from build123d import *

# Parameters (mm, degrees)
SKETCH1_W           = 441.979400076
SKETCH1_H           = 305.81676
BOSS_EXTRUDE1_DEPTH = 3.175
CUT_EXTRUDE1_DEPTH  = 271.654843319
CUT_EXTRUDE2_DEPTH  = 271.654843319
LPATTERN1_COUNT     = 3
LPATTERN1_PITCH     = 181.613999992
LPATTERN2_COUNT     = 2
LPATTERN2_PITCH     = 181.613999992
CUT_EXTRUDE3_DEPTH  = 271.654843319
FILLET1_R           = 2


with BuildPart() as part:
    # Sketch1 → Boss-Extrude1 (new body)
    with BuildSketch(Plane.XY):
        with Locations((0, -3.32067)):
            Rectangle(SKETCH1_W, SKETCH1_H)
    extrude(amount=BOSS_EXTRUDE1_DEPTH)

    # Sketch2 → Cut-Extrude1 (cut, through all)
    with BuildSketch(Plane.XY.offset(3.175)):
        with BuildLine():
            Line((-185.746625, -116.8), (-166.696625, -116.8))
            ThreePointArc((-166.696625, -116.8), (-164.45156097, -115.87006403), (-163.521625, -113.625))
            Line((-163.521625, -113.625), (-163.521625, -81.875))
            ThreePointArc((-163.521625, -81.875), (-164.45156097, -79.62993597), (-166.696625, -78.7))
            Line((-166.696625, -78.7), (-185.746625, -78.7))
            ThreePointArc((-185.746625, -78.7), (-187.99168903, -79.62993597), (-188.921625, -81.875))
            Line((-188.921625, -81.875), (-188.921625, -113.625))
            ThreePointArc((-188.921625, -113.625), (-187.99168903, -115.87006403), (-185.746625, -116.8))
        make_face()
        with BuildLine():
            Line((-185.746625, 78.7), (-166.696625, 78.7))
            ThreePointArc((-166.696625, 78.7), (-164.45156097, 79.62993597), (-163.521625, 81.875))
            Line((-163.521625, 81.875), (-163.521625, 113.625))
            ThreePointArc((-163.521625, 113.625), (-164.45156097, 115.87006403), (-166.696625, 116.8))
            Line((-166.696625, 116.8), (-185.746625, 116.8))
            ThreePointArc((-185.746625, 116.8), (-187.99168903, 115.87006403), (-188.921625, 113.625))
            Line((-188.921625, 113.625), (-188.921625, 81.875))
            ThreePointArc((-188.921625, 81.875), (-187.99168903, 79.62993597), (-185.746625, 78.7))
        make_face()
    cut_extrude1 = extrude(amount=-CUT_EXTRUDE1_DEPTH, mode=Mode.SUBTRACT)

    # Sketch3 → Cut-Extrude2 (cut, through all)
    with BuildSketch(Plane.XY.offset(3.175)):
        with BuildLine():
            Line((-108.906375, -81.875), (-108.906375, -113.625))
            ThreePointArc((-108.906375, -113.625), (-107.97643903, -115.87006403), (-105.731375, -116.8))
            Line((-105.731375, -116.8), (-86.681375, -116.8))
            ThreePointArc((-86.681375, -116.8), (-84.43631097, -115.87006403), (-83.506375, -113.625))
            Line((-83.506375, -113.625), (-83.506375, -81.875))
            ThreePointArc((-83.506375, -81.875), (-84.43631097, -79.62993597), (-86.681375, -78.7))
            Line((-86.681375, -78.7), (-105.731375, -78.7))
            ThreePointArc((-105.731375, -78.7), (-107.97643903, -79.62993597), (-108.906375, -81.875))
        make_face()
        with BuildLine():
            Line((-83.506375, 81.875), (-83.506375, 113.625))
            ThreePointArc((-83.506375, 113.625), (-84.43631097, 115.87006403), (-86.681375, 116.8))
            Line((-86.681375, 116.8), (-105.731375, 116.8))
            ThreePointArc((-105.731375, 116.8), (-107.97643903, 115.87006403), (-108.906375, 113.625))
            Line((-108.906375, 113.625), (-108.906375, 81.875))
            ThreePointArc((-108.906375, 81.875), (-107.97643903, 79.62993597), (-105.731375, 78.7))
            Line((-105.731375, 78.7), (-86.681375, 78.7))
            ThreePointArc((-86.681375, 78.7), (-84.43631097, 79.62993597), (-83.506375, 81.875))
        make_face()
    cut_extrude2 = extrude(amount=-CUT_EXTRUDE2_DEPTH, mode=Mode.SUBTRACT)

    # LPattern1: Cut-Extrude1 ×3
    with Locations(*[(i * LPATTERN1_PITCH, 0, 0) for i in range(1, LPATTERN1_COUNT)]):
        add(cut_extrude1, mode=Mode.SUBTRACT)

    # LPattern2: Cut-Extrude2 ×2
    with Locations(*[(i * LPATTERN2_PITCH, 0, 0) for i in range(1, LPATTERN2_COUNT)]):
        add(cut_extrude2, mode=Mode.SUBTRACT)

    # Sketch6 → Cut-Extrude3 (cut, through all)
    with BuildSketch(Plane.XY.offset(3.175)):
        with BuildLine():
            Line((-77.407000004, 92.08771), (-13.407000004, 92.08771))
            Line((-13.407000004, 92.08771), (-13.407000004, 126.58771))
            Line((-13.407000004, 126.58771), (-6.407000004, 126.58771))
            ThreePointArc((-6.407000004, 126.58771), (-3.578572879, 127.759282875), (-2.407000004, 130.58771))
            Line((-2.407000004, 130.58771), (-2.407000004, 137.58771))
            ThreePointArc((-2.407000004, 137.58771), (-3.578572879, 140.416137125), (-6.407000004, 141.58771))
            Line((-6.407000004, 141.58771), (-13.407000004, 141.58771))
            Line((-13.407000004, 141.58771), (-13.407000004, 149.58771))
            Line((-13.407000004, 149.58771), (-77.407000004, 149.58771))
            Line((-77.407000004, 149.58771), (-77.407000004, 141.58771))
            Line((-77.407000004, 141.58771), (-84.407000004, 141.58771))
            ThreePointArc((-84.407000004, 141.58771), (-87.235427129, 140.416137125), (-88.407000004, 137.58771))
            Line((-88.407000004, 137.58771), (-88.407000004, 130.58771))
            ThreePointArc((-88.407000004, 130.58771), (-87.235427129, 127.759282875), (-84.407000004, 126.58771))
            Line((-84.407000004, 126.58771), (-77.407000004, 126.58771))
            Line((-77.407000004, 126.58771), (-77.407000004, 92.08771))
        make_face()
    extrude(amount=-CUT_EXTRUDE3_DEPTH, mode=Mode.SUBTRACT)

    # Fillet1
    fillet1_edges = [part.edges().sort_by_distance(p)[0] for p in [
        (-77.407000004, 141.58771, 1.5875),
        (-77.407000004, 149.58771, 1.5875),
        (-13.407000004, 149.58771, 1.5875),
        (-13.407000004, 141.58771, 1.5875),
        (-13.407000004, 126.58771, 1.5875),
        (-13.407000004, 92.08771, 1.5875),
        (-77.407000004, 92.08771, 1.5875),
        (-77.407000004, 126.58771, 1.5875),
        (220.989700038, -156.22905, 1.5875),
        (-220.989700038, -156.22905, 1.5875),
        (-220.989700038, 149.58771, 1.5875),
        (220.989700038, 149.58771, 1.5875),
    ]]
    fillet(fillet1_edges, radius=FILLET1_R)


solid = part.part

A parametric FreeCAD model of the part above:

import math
import FreeCAD as App
import Part
import Sketcher


def edges_at(feature, points):
    """Names of the edges that pass closest to the given points."""
    edges = feature.Shape.Edges
    near = lambda p: min(range(len(edges)), key=lambda i: edges[i].distToShape(Part.Vertex(*p))[0])
    return sorted({f"Edge{near(p) + 1}" for p in points})

doc = App.newDocument("Part")
params = doc.addObject("Spreadsheet::Sheet", "Params")
for row, (alias, value) in enumerate([
    ("pad1_length", "3.175 mm"),
    ("sketch2_width", "19.05 mm"),
    ("sketch2_height", "31.75 mm"),
    ("sketch3_width", "19.05 mm"),
    ("sketch3_height", "31.75 mm"),
    ("linearpattern_pitch", "181.614 mm"),
    ("linearpattern2_pitch", "181.614 mm"),
    ("sketch4_radius", "4 mm"),
    ("sketch4_width", "64 mm"),
    ("sketch4_width2", "7 mm"),
    ("sketch4_height", "8 mm"),
    ("sketch4_height2", "34.5 mm"),
    ("fillet_radius", "2 mm"),
], start=1):
    params.set(f"A{row}", alias)
    params.set(f"B{row}", "=" + value)
    params.setAlias(f"B{row}", alias)

body = doc.addObject("PartDesign::Body", "Body")

# Sketch on XY plane
sketch1 = body.newObject("Sketcher::SketchObject", "Sketch")
sketch1.AttachmentSupport = (doc.getObject("XY_Plane"), [""])
sketch1.MapMode = "FlatFace"
sketch1.addGeometry([
    Part.LineSegment(App.Vector(-220.9897, 149.58771, 0), App.Vector(-220.9897, -156.22905, 0)),
    Part.LineSegment(App.Vector(-220.9897, -156.22905, 0), App.Vector(220.9897, -156.22905, 0)),
    Part.LineSegment(App.Vector(220.9897, -156.22905, 0), App.Vector(220.9897, 149.58771, 0)),
    Part.LineSegment(App.Vector(220.9897, 149.58771, 0), App.Vector(-220.9897, 149.58771, 0)),
], False)
sketch1.addConstraint([
    Sketcher.Constraint("Coincident", 0, 2, 1, 1),
    Sketcher.Constraint("Coincident", 1, 2, 2, 1),
    Sketcher.Constraint("Coincident", 2, 2, 3, 1),
    Sketcher.Constraint("Coincident", 3, 2, 0, 1),
    Sketcher.Constraint("Vertical", 0),
    Sketcher.Constraint("Horizontal", 1),
    Sketcher.Constraint("Vertical", 2),
    Sketcher.Constraint("Horizontal", 3),
    Sketcher.Constraint("DistanceX", 1, 1, 1, 2, 441.9794),
    Sketcher.Constraint("DistanceY", 0, 2, 0, 1, 305.81676),
    Sketcher.Constraint("DistanceX", 0, 2, -1, 1, 220.9897),
    Sketcher.Constraint("DistanceY", 0, 2, -1, 1, 156.22905),
])
pad1 = body.newObject("PartDesign::Pad", "Pad")
pad1.Profile = sketch1
pad1.setExpression("Length", "Params.pad1_length")

# Sketch on XY plane
sketch2 = body.newObject("Sketcher::SketchObject", "Sketch001")
sketch2.AttachmentSupport = (doc.getObject("XY_Plane"), [""])
sketch2.MapMode = "FlatFace"
sketch2.AttachmentOffset = App.Placement(App.Vector(0, 0, 3.175), App.Rotation())
sketch2.addGeometry([
    Part.LineSegment(App.Vector(-185.746625, -116.8, 0), App.Vector(-166.696625, -116.8, 0)),  # 0
    Part.ArcOfCircle(Part.Circle(App.Vector(-166.696625, -113.625, 0), App.Vector(0, 0, 1), 3.175), math.radians(-90), math.radians(0)),  # 1
    Part.LineSegment(App.Vector(-163.521625, -113.625, 0), App.Vector(-163.521625, -81.875, 0)),  # 2
    Part.ArcOfCircle(Part.Circle(App.Vector(-166.696625, -81.875, 0), App.Vector(0, 0, 1), 3.175), math.radians(0), math.radians(90)),  # 3
    Part.LineSegment(App.Vector(-166.696625, -78.7, 0), App.Vector(-185.746625, -78.7, 0)),  # 4
    Part.ArcOfCircle(Part.Circle(App.Vector(-185.746625, -81.875, 0), App.Vector(0, 0, 1), 3.175), math.radians(90), math.radians(180)),  # 5
    Part.LineSegment(App.Vector(-188.921625, -81.875, 0), App.Vector(-188.921625, -113.625, 0)),  # 6
    Part.ArcOfCircle(Part.Circle(App.Vector(-185.746625, -113.625, 0), App.Vector(0, 0, 1), 3.175), math.radians(-180), math.radians(-90)),  # 7
    Part.LineSegment(App.Vector(-185.746625, 78.7, 0), App.Vector(-166.696625, 78.7, 0)),  # 8
    Part.ArcOfCircle(Part.Circle(App.Vector(-166.696625, 81.875, 0), App.Vector(0, 0, 1), 3.175), math.radians(-90), math.radians(0)),  # 9
    Part.LineSegment(App.Vector(-163.521625, 81.875, 0), App.Vector(-163.521625, 113.625, 0)),  # 10
    Part.ArcOfCircle(Part.Circle(App.Vector(-166.696625, 113.625, 0), App.Vector(0, 0, 1), 3.175), math.radians(0), math.radians(90)),  # 11
    Part.LineSegment(App.Vector(-166.696625, 116.8, 0), App.Vector(-185.746625, 116.8, 0)),  # 12
    Part.ArcOfCircle(Part.Circle(App.Vector(-185.746625, 113.625, 0), App.Vector(0, 0, 1), 3.175), math.radians(90), math.radians(180)),  # 13
    Part.LineSegment(App.Vector(-188.921625, 113.625, 0), App.Vector(-188.921625, 81.875, 0)),  # 14
    Part.ArcOfCircle(Part.Circle(App.Vector(-185.746625, 81.875, 0), App.Vector(0, 0, 1), 3.175), math.radians(-180), math.radians(-90)),  # 15
], False)
sketch2.addConstraint([
    Sketcher.Constraint("Tangent", 0, 2, 1, 1),
    Sketcher.Constraint("Tangent", 1, 2, 2, 1),
    Sketcher.Constraint("Tangent", 2, 2, 3, 1),
    Sketcher.Constraint("Tangent", 3, 2, 4, 1),
    Sketcher.Constraint("Tangent", 4, 2, 5, 1),
    Sketcher.Constraint("Tangent", 5, 2, 6, 1),
    Sketcher.Constraint("Tangent", 6, 2, 7, 1),
    Sketcher.Constraint("Tangent", 7, 2, 0, 1),
    Sketcher.Constraint("Tangent", 8, 2, 9, 1),
    Sketcher.Constraint("Tangent", 9, 2, 10, 1),
    Sketcher.Constraint("Tangent", 10, 2, 11, 1),
    Sketcher.Constraint("Tangent", 11, 2, 12, 1),
    Sketcher.Constraint("Tangent", 12, 2, 13, 1),
    Sketcher.Constraint("Tangent", 13, 2, 14, 1),
    Sketcher.Constraint("Tangent", 14, 2, 15, 1),
    Sketcher.Constraint("Tangent", 15, 2, 8, 1),
    Sketcher.Constraint("Horizontal", 0),
    Sketcher.Constraint("Vertical", 2),
    Sketcher.Constraint("Horizontal", 4),
    Sketcher.Constraint("Vertical", 6),
    Sketcher.Constraint("Horizontal", 8),
    Sketcher.Constraint("Vertical", 10),
    Sketcher.Constraint("Horizontal", 12),
    Sketcher.Constraint("Vertical", 14),
    Sketcher.Constraint("Equal", 1, 3),
    Sketcher.Constraint("Equal", 3, 5),
    Sketcher.Constraint("Equal", 5, 7),
    Sketcher.Constraint("Equal", 7, 9),
    Sketcher.Constraint("Equal", 9, 11),
    Sketcher.Constraint("Equal", 11, 13),
    Sketcher.Constraint("Equal", 13, 15),
    Sketcher.Constraint("Symmetric", 3, 3, 9, 3, -1),
    Sketcher.Constraint("Symmetric", 7, 3, 13, 3, -1),
    Sketcher.Constraint("Radius", 1, 3.175),
    Sketcher.Constraint("DistanceX", 0, 1, 0, 2, 19.05),
    Sketcher.Constraint("DistanceY", 2, 1, 2, 2, 31.75),
    Sketcher.Constraint("DistanceY", 0, 2, -1, 1, 116.8),
    Sketcher.Constraint("DistanceX", 1, 3, -1, 1, 166.696625),
])
sketch2.setExpression("Constraints[34]", "Params.sketch2_width")
sketch2.setExpression("Constraints[35]", "Params.sketch2_height")
pocket1 = body.newObject("PartDesign::Pocket", "Pocket")
pocket1.Profile = sketch2
pocket1.Type = "ThroughAll"

# Sketch on XY plane
sketch3 = body.newObject("Sketcher::SketchObject", "Sketch002")
sketch3.AttachmentSupport = (doc.getObject("XY_Plane"), [""])
sketch3.MapMode = "FlatFace"
sketch3.AttachmentOffset = App.Placement(App.Vector(0, 0, 3.175), App.Rotation())
sketch3.addGeometry([
    Part.LineSegment(App.Vector(-108.906375, -81.875, 0), App.Vector(-108.906375, -113.625, 0)),  # 0
    Part.ArcOfCircle(Part.Circle(App.Vector(-105.731375, -113.625, 0), App.Vector(0, 0, 1), 3.175), math.radians(-180), math.radians(-90)),  # 1
    Part.LineSegment(App.Vector(-105.731375, -116.8, 0), App.Vector(-86.681375, -116.8, 0)),  # 2
    Part.ArcOfCircle(Part.Circle(App.Vector(-86.681375, -113.625, 0), App.Vector(0, 0, 1), 3.175), math.radians(-90), math.radians(0)),  # 3
    Part.LineSegment(App.Vector(-83.506375, -113.625, 0), App.Vector(-83.506375, -81.875, 0)),  # 4
    Part.ArcOfCircle(Part.Circle(App.Vector(-86.681375, -81.875, 0), App.Vector(0, 0, 1), 3.175), math.radians(0), math.radians(90)),  # 5
    Part.LineSegment(App.Vector(-86.681375, -78.7, 0), App.Vector(-105.731375, -78.7, 0)),  # 6
    Part.ArcOfCircle(Part.Circle(App.Vector(-105.731375, -81.875, 0), App.Vector(0, 0, 1), 3.175), math.radians(90), math.radians(180)),  # 7
    Part.LineSegment(App.Vector(-83.506375, 81.875, 0), App.Vector(-83.506375, 113.625, 0)),  # 8
    Part.ArcOfCircle(Part.Circle(App.Vector(-86.681375, 113.625, 0), App.Vector(0, 0, 1), 3.175), math.radians(0), math.radians(90)),  # 9
    Part.LineSegment(App.Vector(-86.681375, 116.8, 0), App.Vector(-105.731375, 116.8, 0)),  # 10
    Part.ArcOfCircle(Part.Circle(App.Vector(-105.731375, 113.625, 0), App.Vector(0, 0, 1), 3.175), math.radians(90), math.radians(180)),  # 11
    Part.LineSegment(App.Vector(-108.906375, 113.625, 0), App.Vector(-108.906375, 81.875, 0)),  # 12
    Part.ArcOfCircle(Part.Circle(App.Vector(-105.731375, 81.875, 0), App.Vector(0, 0, 1), 3.175), math.radians(-180), math.radians(-90)),  # 13
    Part.LineSegment(App.Vector(-105.731375, 78.7, 0), App.Vector(-86.681375, 78.7, 0)),  # 14
    Part.ArcOfCircle(Part.Circle(App.Vector(-86.681375, 81.875, 0), App.Vector(0, 0, 1), 3.175), math.radians(-90), math.radians(0)),  # 15
], False)
sketch3.addConstraint([
    Sketcher.Constraint("Tangent", 0, 2, 1, 1),
    Sketcher.Constraint("Tangent", 1, 2, 2, 1),
    Sketcher.Constraint("Tangent", 2, 2, 3, 1),
    Sketcher.Constraint("Tangent", 3, 2, 4, 1),
    Sketcher.Constraint("Tangent", 4, 2, 5, 1),
    Sketcher.Constraint("Tangent", 5, 2, 6, 1),
    Sketcher.Constraint("Tangent", 6, 2, 7, 1),
    Sketcher.Constraint("Tangent", 7, 2, 0, 1),
    Sketcher.Constraint("Tangent", 8, 2, 9, 1),
    Sketcher.Constraint("Tangent", 9, 2, 10, 1),
    Sketcher.Constraint("Tangent", 10, 2, 11, 1),
    Sketcher.Constraint("Tangent", 11, 2, 12, 1),
    Sketcher.Constraint("Tangent", 12, 2, 13, 1),
    Sketcher.Constraint("Tangent", 13, 2, 14, 1),
    Sketcher.Constraint("Tangent", 14, 2, 15, 1),
    Sketcher.Constraint("Tangent", 15, 2, 8, 1),
    Sketcher.Constraint("Vertical", 0),
    Sketcher.Constraint("Horizontal", 2),
    Sketcher.Constraint("Vertical", 4),
    Sketcher.Constraint("Horizontal", 6),
    Sketcher.Constraint("Vertical", 8),
    Sketcher.Constraint("Horizontal", 10),
    Sketcher.Constraint("Vertical", 12),
    Sketcher.Constraint("Horizontal", 14),
    Sketcher.Constraint("Equal", 1, 3),
    Sketcher.Constraint("Equal", 3, 5),
    Sketcher.Constraint("Equal", 5, 7),
    Sketcher.Constraint("Equal", 7, 9),
    Sketcher.Constraint("Equal", 9, 11),
    Sketcher.Constraint("Equal", 11, 13),
    Sketcher.Constraint("Equal", 13, 15),
    Sketcher.Constraint("Symmetric", 3, 3, 9, 3, -1),
    Sketcher.Constraint("Symmetric", 7, 3, 13, 3, -1),
    Sketcher.Constraint("Radius", 1, 3.175),
    Sketcher.Constraint("DistanceX", 2, 1, 2, 2, 19.05),
    Sketcher.Constraint("DistanceY", 0, 2, 0, 1, 31.75),
    Sketcher.Constraint("DistanceY", 1, 2, -1, 1, 116.8),
    Sketcher.Constraint("DistanceX", 1, 3, -1, 1, 105.731375),
])
sketch3.setExpression("Constraints[34]", "Params.sketch3_width")
sketch3.setExpression("Constraints[35]", "Params.sketch3_height")
pocket2 = body.newObject("PartDesign::Pocket", "Pocket001")
pocket2.Profile = sketch3
pocket2.Type = "ThroughAll"
doc.recompute()

linearpattern = body.newObject("PartDesign::LinearPattern", "LinearPattern")
linearpattern.Originals = [pocket1]
linearpattern.Direction = (doc.getObject("X_Axis"), [""])
linearpattern.Mode = "offset"
linearpattern.setExpression("Offset", "Params.linearpattern_pitch")
linearpattern.Occurrences = 3
body.Tip = linearpattern
doc.recompute()

linearpattern2 = body.newObject("PartDesign::LinearPattern", "LinearPattern001")
linearpattern2.Originals = [pocket2]
linearpattern2.Direction = (doc.getObject("X_Axis"), [""])
linearpattern2.Mode = "offset"
linearpattern2.setExpression("Offset", "Params.linearpattern2_pitch")
linearpattern2.Occurrences = 2
body.Tip = linearpattern2

# Sketch on XY plane
sketch4 = body.newObject("Sketcher::SketchObject", "Sketch003")
sketch4.AttachmentSupport = (doc.getObject("XY_Plane"), [""])
sketch4.MapMode = "FlatFace"
sketch4.AttachmentOffset = App.Placement(App.Vector(0, 0, 3.175), App.Rotation())
sketch4.addGeometry([
    Part.LineSegment(App.Vector(-77.407, 92.08771, 0), App.Vector(-13.407, 92.08771, 0)),  # 0
    Part.LineSegment(App.Vector(-13.407, 92.08771, 0), App.Vector(-13.407, 126.58771, 0)),  # 1
    Part.LineSegment(App.Vector(-13.407, 126.58771, 0), App.Vector(-6.407, 126.58771, 0)),  # 2
    Part.ArcOfCircle(Part.Circle(App.Vector(-6.407, 130.58771, 0), App.Vector(0, 0, 1), 4), math.radians(-90), math.radians(0)),  # 3
    Part.LineSegment(App.Vector(-2.407, 130.58771, 0), App.Vector(-2.407, 137.58771, 0)),  # 4
    Part.ArcOfCircle(Part.Circle(App.Vector(-6.407, 137.58771, 0), App.Vector(0, 0, 1), 4), math.radians(0), math.radians(90)),  # 5
    Part.LineSegment(App.Vector(-6.407, 141.58771, 0), App.Vector(-13.407, 141.58771, 0)),  # 6
    Part.LineSegment(App.Vector(-13.407, 141.58771, 0), App.Vector(-13.407, 149.58771, 0)),  # 7
    Part.LineSegment(App.Vector(-13.407, 149.58771, 0), App.Vector(-77.407, 149.58771, 0)),  # 8
    Part.LineSegment(App.Vector(-77.407, 149.58771, 0), App.Vector(-77.407, 141.58771, 0)),  # 9
    Part.LineSegment(App.Vector(-77.407, 141.58771, 0), App.Vector(-84.407, 141.58771, 0)),  # 10
    Part.ArcOfCircle(Part.Circle(App.Vector(-84.407, 137.58771, 0), App.Vector(0, 0, 1), 4), math.radians(90), math.radians(180)),  # 11
    Part.LineSegment(App.Vector(-88.407, 137.58771, 0), App.Vector(-88.407, 130.58771, 0)),  # 12
    Part.ArcOfCircle(Part.Circle(App.Vector(-84.407, 130.58771, 0), App.Vector(0, 0, 1), 4), math.radians(180), math.radians(270)),  # 13
    Part.LineSegment(App.Vector(-84.407, 126.58771, 0), App.Vector(-77.407, 126.58771, 0)),  # 14
    Part.LineSegment(App.Vector(-77.407, 126.58771, 0), App.Vector(-77.407, 92.08771, 0)),  # 15
], False)
sketch4.addConstraint([
    Sketcher.Constraint("Coincident", 0, 2, 1, 1),
    Sketcher.Constraint("Coincident", 1, 2, 2, 1),
    Sketcher.Constraint("Tangent", 2, 2, 3, 1),
    Sketcher.Constraint("Tangent", 3, 2, 4, 1),
    Sketcher.Constraint("Tangent", 4, 2, 5, 1),
    Sketcher.Constraint("Tangent", 5, 2, 6, 1),
    Sketcher.Constraint("Coincident", 6, 2, 7, 1),
    Sketcher.Constraint("Coincident", 7, 2, 8, 1),
    Sketcher.Constraint("Coincident", 8, 2, 9, 1),
    Sketcher.Constraint("Coincident", 9, 2, 10, 1),
    Sketcher.Constraint("Tangent", 10, 2, 11, 1),
    Sketcher.Constraint("Tangent", 11, 2, 12, 1),
    Sketcher.Constraint("Tangent", 12, 2, 13, 1),
    Sketcher.Constraint("Tangent", 13, 2, 14, 1),
    Sketcher.Constraint("Coincident", 14, 2, 15, 1),
    Sketcher.Constraint("Coincident", 15, 2, 0, 1),
    Sketcher.Constraint("Horizontal", 0),
    Sketcher.Constraint("Vertical", 1),
    Sketcher.Constraint("Horizontal", 2),
    Sketcher.Constraint("Vertical", 4),
    Sketcher.Constraint("Horizontal", 6),
    Sketcher.Constraint("Vertical", 7),
    Sketcher.Constraint("Horizontal", 8),
    Sketcher.Constraint("Vertical", 9),
    Sketcher.Constraint("Horizontal", 10),
    Sketcher.Constraint("Vertical", 12),
    Sketcher.Constraint("Horizontal", 14),
    Sketcher.Constraint("Vertical", 15),
    Sketcher.Constraint("Equal", 3, 5),
    Sketcher.Constraint("Equal", 5, 11),
    Sketcher.Constraint("Equal", 11, 13),
    Sketcher.Constraint("Horizontal", 5, 3, 11, 3),
    Sketcher.Constraint("Horizontal", 3, 3, 13, 3),
    Sketcher.Constraint("Vertical", 1, 2, 6, 2),
    Sketcher.Constraint("Vertical", 9, 2, 14, 2),
    Sketcher.Constraint("Equal", 6, 10),
    Sketcher.Constraint("Equal", 14, 4),
    Sketcher.Constraint("Radius", 3, 4.0),
    Sketcher.Constraint("DistanceX", 0, 1, 0, 2, 64.0),
    Sketcher.Constraint("DistanceX", 2, 1, 2, 2, 7.0),
    Sketcher.Constraint("DistanceY", 7, 1, 7, 2, 8.0),
    Sketcher.Constraint("DistanceY", 1, 1, 1, 2, 34.5),
    Sketcher.Constraint("DistanceX", 3, 3, -1, 1, 6.407),
    Sketcher.Constraint("DistanceY", -1, 1, 3, 3, 130.58771),
])
sketch4.setExpression("Constraints[37]", "Params.sketch4_radius")
sketch4.setExpression("Constraints[38]", "Params.sketch4_width")
sketch4.setExpression("Constraints[39]", "Params.sketch4_width2")
sketch4.setExpression("Constraints[40]", "Params.sketch4_height")
sketch4.setExpression("Constraints[41]", "Params.sketch4_height2")
pocket3 = body.newObject("PartDesign::Pocket", "Pocket002")
pocket3.Profile = sketch4
pocket3.Type = "ThroughAll"
doc.recompute()

fillet = body.newObject("PartDesign::Fillet", "Fillet")
fillet.Base = (pocket3, edges_at(pocket3, [
    (-77.407, 141.588, 1.587),
    (-77.407, 149.588, 1.587),
    (-13.407, 149.588, 1.587),
    (-13.407, 141.588, 1.587),
    (-13.407, 126.588, 1.587),
    (-13.407, 92.088, 1.587),
    (-77.407, 92.088, 1.587),
    (-77.407, 126.588, 1.587),
    (220.99, -156.229, 1.587),
    (-220.99, -156.229, 1.587),
    (-220.99, 149.588, 1.587),
    (220.99, 149.588, 1.587),
]))
fillet.setExpression("Radius", "Params.fillet_radius")

doc.recompute()
